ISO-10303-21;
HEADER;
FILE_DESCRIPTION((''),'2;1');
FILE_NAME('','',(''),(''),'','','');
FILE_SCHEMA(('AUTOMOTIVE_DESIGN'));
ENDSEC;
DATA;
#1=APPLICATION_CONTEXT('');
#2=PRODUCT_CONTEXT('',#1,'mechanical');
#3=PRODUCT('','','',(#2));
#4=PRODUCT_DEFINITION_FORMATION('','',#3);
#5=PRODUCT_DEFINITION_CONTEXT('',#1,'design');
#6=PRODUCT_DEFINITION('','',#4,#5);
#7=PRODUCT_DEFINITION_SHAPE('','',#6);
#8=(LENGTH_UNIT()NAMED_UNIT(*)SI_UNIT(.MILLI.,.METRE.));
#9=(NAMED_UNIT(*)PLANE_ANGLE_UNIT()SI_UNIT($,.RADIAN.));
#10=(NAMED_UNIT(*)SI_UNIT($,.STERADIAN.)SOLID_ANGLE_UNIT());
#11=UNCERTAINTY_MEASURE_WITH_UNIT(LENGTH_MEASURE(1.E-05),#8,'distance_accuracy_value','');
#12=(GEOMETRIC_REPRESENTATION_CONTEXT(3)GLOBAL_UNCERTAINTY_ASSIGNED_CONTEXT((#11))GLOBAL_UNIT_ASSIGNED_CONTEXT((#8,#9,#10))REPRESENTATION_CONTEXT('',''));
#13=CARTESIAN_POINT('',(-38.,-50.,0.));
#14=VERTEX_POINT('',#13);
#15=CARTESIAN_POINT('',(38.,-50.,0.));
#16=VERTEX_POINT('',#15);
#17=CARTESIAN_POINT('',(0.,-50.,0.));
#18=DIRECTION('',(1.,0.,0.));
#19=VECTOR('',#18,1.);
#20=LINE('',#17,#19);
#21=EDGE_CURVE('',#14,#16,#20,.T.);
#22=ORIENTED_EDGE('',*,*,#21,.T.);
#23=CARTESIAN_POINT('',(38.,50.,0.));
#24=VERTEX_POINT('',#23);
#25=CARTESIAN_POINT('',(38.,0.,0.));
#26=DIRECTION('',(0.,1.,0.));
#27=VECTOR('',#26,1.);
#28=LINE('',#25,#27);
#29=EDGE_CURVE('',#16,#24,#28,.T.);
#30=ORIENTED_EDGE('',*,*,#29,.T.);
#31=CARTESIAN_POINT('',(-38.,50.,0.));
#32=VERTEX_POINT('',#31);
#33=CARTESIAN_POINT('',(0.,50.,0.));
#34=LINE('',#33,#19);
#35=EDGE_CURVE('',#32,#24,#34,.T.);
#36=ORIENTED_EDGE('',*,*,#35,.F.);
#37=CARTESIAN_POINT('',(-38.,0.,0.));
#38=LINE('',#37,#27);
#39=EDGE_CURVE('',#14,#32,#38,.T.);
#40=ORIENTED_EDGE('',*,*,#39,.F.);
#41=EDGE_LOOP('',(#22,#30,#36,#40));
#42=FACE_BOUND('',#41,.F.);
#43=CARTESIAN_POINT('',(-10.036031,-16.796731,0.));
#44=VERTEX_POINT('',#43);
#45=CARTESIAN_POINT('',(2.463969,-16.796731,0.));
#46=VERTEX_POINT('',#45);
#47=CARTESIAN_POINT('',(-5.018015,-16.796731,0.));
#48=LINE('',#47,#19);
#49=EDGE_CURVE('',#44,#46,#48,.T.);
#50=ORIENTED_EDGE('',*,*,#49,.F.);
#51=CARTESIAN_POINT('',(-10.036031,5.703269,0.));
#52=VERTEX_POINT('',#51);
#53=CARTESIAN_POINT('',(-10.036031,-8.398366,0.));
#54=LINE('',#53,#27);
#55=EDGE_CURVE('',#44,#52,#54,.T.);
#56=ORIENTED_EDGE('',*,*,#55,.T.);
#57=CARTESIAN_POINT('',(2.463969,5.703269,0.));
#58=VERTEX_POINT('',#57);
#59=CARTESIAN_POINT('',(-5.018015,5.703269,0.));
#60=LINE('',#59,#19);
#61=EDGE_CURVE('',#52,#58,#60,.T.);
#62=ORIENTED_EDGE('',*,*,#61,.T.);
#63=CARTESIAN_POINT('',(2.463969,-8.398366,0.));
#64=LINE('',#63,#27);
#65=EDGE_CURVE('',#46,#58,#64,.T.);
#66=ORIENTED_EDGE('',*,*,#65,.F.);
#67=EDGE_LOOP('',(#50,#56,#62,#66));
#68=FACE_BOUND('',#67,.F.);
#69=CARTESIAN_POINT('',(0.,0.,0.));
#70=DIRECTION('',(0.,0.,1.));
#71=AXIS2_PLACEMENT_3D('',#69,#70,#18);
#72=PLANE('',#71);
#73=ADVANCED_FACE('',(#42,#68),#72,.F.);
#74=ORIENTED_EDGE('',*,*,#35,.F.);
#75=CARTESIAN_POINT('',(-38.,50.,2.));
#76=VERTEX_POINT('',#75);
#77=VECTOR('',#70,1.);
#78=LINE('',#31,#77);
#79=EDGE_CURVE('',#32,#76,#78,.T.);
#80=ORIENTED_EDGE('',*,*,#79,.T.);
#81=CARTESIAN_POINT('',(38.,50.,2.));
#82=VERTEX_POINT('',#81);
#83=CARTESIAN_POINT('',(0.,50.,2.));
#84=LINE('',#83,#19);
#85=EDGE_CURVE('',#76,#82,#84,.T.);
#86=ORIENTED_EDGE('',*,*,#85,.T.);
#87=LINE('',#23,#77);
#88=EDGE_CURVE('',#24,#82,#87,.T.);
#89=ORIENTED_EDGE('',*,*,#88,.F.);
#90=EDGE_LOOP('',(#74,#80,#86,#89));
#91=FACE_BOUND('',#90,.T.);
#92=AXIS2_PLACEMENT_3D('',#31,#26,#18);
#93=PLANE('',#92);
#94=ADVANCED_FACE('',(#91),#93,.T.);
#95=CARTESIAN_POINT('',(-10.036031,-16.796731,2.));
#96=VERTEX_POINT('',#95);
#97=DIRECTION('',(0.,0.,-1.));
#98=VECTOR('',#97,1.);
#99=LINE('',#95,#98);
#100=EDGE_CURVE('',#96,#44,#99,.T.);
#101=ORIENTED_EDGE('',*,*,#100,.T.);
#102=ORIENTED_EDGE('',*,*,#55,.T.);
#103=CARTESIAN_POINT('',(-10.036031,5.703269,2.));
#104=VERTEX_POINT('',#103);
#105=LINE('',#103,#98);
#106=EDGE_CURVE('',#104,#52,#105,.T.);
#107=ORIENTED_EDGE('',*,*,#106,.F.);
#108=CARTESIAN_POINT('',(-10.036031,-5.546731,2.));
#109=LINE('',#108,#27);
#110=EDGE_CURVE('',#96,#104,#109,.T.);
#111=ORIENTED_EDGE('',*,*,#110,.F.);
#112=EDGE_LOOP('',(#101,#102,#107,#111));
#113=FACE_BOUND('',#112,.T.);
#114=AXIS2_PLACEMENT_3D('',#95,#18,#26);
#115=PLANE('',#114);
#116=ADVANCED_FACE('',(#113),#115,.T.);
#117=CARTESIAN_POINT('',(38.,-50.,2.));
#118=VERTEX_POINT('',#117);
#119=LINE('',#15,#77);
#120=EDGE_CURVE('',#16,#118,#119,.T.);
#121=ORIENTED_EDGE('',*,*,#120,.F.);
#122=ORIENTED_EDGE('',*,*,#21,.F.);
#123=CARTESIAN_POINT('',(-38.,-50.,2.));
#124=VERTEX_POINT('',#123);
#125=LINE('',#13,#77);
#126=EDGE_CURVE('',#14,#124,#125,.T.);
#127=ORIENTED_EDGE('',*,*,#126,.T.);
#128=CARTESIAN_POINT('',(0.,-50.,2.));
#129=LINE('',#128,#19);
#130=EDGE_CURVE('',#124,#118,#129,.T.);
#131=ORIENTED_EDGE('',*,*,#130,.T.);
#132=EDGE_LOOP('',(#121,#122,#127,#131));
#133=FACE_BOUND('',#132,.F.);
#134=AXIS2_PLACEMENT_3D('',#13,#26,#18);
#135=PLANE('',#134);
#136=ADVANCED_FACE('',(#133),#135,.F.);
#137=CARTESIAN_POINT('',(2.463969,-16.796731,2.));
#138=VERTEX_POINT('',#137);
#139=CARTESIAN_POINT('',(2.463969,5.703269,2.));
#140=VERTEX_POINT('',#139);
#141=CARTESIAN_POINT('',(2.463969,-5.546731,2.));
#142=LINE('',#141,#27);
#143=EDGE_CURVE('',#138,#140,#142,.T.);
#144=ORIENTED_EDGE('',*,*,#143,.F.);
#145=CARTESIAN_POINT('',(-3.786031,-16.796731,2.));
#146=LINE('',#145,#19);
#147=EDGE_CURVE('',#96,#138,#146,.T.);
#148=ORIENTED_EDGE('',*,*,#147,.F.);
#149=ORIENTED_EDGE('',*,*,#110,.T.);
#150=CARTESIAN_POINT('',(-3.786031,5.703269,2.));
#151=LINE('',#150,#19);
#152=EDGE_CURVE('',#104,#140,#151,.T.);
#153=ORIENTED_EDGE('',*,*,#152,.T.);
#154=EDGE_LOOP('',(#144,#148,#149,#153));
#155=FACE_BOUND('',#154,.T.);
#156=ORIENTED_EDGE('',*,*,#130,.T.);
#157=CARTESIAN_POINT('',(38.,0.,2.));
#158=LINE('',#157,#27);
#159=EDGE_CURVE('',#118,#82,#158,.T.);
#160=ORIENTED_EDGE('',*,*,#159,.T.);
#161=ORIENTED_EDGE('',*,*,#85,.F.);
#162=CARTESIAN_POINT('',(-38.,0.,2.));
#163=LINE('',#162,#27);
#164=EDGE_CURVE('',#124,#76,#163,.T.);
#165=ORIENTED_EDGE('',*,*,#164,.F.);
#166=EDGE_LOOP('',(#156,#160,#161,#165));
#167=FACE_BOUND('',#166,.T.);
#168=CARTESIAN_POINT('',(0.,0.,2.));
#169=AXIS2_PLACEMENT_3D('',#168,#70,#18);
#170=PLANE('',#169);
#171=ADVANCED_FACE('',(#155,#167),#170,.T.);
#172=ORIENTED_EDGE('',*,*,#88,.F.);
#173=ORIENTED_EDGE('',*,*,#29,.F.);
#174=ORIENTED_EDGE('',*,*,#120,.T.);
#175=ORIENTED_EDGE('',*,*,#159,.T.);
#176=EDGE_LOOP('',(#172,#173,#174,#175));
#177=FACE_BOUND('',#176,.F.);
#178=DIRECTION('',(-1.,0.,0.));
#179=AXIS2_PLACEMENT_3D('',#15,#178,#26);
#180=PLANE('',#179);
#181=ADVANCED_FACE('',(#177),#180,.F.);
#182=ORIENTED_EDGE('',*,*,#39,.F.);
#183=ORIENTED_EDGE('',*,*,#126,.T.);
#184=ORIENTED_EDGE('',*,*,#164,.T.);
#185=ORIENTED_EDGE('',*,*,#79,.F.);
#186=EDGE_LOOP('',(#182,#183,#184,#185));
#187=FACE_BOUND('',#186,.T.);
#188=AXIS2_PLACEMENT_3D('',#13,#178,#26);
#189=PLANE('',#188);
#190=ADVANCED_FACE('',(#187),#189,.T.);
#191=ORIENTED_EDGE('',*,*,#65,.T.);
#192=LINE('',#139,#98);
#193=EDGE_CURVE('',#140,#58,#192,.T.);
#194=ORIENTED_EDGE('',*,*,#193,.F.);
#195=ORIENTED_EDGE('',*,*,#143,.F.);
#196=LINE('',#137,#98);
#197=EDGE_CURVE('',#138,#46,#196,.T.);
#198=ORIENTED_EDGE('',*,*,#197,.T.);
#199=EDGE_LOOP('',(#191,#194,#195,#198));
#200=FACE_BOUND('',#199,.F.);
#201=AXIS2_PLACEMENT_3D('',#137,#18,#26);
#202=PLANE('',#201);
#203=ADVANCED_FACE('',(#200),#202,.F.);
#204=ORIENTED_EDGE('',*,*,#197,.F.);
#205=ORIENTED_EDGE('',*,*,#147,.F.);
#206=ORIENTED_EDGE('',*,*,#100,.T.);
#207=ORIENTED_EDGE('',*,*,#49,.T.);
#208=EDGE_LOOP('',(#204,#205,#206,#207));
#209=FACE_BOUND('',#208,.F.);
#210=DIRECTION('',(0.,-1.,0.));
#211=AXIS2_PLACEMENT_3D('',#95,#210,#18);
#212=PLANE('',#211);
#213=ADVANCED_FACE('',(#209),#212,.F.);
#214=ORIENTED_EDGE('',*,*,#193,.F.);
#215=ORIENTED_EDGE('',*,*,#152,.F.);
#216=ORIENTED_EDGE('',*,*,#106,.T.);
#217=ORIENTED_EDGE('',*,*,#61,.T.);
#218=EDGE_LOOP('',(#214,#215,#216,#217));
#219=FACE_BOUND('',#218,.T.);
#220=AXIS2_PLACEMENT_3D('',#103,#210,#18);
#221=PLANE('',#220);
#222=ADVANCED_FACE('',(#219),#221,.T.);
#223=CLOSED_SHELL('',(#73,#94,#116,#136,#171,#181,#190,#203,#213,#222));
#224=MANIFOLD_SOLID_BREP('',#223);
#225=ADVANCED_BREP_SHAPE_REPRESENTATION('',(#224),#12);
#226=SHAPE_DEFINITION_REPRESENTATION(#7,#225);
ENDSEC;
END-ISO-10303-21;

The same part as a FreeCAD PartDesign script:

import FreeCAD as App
import Part
import Sketcher
from FreeCAD import Vector
Q = App.Units.Quantity

doc = App.newDocument("Part")
body = doc.addObject("PartDesign::Body", "Body")

# Sketch on XY plane
sketch1 = body.newObject("Sketcher::SketchObject", "Sketch")
sketch1.AttachmentSupport = (doc.getObject("XY_Plane"), [""])
sketch1.MapMode = "FlatFace"
sketch1.addGeometry([
    Part.LineSegment(Vector(-38, 50, 0), Vector(-38, -50, 0)),
    Part.LineSegment(Vector(-38, -50, 0), Vector(38, -50, 0)),
    Part.LineSegment(Vector(38, -50, 0), Vector(38, 50, 0)),
    Part.LineSegment(Vector(38, 50, 0), Vector(-38, 50, 0)),
], False)
sketch1.addConstraint([
    Sketcher.Constraint("Coincident", 0, 2, 1, 1),
    Sketcher.Constraint("Coincident", 1, 2, 2, 1),
    Sketcher.Constraint("Coincident", 2, 2, 3, 1),
    Sketcher.Constraint("Coincident", 3, 2, 0, 1),
    Sketcher.Constraint("Vertical", 0),
    Sketcher.Constraint("Horizontal", 1),
    Sketcher.Constraint("Vertical", 2),
    Sketcher.Constraint("Horizontal", 3),
    Sketcher.Constraint("Symmetric", 0, 2, 2, 2, -1, 1),
    Sketcher.Constraint("DistanceX", 1, 1, 1, 2, Q("76 mm")),
    Sketcher.Constraint("DistanceY", 0, 2, 0, 1, Q("100 mm")),
])
pad1 = body.newObject("PartDesign::Pad", "Pad")
pad1.Profile = sketch1
pad1.Length = 2

# Sketch on XY plane
sketch2 = body.newObject("Sketcher::SketchObject", "Sketch001")
sketch2.AttachmentSupport = (doc.getObject("XY_Plane"), [""])
sketch2.MapMode = "FlatFace"
sketch2.AttachmentOffset = App.Placement(Vector(0, 0, 2), App.Rotation())
sketch2.addGeometry([
    Part.LineSegment(Vector(-10, 6, 0), Vector(-10, -17, 0)),
    Part.LineSegment(Vector(-10, -17, 0), Vector(2, -17, 0)),
    Part.LineSegment(Vector(2, -17, 0), Vector(2, 6, 0)),
    Part.LineSegment(Vector(2, 6, 0), Vector(-10, 6, 0)),
], False)
sketch2.addConstraint([
    Sketcher.Constraint("Coincident", 0, 2, 1, 1),
    Sketcher.Constraint("Coincident", 1, 2, 2, 1),
    Sketcher.Constraint("Coincident", 2, 2, 3, 1),
    Sketcher.Constraint("Coincident", 3, 2, 0, 1),
    Sketcher.Constraint("Vertical", 0),
    Sketcher.Constraint("Horizontal", 1),
    Sketcher.Constraint("Vertical", 2),
    Sketcher.Constraint("Horizontal", 3),
    Sketcher.Constraint("DistanceX", 1, 1, 1, 2, Q("12.5 mm")),
    Sketcher.Constraint("DistanceY", 0, 2, 0, 1, Q("22.5 mm")),
    Sketcher.Constraint("DistanceX", 0, 2, -1, 1, Q("10.036031 mm")),
    Sketcher.Constraint("DistanceY", 0, 2, -1, 1, Q("16.796731 mm")),
])
pocket1 = body.newObject("PartDesign::Pocket", "Pocket")
pocket1.Profile = sketch2
pocket1.Length = 5

doc.recompute()
